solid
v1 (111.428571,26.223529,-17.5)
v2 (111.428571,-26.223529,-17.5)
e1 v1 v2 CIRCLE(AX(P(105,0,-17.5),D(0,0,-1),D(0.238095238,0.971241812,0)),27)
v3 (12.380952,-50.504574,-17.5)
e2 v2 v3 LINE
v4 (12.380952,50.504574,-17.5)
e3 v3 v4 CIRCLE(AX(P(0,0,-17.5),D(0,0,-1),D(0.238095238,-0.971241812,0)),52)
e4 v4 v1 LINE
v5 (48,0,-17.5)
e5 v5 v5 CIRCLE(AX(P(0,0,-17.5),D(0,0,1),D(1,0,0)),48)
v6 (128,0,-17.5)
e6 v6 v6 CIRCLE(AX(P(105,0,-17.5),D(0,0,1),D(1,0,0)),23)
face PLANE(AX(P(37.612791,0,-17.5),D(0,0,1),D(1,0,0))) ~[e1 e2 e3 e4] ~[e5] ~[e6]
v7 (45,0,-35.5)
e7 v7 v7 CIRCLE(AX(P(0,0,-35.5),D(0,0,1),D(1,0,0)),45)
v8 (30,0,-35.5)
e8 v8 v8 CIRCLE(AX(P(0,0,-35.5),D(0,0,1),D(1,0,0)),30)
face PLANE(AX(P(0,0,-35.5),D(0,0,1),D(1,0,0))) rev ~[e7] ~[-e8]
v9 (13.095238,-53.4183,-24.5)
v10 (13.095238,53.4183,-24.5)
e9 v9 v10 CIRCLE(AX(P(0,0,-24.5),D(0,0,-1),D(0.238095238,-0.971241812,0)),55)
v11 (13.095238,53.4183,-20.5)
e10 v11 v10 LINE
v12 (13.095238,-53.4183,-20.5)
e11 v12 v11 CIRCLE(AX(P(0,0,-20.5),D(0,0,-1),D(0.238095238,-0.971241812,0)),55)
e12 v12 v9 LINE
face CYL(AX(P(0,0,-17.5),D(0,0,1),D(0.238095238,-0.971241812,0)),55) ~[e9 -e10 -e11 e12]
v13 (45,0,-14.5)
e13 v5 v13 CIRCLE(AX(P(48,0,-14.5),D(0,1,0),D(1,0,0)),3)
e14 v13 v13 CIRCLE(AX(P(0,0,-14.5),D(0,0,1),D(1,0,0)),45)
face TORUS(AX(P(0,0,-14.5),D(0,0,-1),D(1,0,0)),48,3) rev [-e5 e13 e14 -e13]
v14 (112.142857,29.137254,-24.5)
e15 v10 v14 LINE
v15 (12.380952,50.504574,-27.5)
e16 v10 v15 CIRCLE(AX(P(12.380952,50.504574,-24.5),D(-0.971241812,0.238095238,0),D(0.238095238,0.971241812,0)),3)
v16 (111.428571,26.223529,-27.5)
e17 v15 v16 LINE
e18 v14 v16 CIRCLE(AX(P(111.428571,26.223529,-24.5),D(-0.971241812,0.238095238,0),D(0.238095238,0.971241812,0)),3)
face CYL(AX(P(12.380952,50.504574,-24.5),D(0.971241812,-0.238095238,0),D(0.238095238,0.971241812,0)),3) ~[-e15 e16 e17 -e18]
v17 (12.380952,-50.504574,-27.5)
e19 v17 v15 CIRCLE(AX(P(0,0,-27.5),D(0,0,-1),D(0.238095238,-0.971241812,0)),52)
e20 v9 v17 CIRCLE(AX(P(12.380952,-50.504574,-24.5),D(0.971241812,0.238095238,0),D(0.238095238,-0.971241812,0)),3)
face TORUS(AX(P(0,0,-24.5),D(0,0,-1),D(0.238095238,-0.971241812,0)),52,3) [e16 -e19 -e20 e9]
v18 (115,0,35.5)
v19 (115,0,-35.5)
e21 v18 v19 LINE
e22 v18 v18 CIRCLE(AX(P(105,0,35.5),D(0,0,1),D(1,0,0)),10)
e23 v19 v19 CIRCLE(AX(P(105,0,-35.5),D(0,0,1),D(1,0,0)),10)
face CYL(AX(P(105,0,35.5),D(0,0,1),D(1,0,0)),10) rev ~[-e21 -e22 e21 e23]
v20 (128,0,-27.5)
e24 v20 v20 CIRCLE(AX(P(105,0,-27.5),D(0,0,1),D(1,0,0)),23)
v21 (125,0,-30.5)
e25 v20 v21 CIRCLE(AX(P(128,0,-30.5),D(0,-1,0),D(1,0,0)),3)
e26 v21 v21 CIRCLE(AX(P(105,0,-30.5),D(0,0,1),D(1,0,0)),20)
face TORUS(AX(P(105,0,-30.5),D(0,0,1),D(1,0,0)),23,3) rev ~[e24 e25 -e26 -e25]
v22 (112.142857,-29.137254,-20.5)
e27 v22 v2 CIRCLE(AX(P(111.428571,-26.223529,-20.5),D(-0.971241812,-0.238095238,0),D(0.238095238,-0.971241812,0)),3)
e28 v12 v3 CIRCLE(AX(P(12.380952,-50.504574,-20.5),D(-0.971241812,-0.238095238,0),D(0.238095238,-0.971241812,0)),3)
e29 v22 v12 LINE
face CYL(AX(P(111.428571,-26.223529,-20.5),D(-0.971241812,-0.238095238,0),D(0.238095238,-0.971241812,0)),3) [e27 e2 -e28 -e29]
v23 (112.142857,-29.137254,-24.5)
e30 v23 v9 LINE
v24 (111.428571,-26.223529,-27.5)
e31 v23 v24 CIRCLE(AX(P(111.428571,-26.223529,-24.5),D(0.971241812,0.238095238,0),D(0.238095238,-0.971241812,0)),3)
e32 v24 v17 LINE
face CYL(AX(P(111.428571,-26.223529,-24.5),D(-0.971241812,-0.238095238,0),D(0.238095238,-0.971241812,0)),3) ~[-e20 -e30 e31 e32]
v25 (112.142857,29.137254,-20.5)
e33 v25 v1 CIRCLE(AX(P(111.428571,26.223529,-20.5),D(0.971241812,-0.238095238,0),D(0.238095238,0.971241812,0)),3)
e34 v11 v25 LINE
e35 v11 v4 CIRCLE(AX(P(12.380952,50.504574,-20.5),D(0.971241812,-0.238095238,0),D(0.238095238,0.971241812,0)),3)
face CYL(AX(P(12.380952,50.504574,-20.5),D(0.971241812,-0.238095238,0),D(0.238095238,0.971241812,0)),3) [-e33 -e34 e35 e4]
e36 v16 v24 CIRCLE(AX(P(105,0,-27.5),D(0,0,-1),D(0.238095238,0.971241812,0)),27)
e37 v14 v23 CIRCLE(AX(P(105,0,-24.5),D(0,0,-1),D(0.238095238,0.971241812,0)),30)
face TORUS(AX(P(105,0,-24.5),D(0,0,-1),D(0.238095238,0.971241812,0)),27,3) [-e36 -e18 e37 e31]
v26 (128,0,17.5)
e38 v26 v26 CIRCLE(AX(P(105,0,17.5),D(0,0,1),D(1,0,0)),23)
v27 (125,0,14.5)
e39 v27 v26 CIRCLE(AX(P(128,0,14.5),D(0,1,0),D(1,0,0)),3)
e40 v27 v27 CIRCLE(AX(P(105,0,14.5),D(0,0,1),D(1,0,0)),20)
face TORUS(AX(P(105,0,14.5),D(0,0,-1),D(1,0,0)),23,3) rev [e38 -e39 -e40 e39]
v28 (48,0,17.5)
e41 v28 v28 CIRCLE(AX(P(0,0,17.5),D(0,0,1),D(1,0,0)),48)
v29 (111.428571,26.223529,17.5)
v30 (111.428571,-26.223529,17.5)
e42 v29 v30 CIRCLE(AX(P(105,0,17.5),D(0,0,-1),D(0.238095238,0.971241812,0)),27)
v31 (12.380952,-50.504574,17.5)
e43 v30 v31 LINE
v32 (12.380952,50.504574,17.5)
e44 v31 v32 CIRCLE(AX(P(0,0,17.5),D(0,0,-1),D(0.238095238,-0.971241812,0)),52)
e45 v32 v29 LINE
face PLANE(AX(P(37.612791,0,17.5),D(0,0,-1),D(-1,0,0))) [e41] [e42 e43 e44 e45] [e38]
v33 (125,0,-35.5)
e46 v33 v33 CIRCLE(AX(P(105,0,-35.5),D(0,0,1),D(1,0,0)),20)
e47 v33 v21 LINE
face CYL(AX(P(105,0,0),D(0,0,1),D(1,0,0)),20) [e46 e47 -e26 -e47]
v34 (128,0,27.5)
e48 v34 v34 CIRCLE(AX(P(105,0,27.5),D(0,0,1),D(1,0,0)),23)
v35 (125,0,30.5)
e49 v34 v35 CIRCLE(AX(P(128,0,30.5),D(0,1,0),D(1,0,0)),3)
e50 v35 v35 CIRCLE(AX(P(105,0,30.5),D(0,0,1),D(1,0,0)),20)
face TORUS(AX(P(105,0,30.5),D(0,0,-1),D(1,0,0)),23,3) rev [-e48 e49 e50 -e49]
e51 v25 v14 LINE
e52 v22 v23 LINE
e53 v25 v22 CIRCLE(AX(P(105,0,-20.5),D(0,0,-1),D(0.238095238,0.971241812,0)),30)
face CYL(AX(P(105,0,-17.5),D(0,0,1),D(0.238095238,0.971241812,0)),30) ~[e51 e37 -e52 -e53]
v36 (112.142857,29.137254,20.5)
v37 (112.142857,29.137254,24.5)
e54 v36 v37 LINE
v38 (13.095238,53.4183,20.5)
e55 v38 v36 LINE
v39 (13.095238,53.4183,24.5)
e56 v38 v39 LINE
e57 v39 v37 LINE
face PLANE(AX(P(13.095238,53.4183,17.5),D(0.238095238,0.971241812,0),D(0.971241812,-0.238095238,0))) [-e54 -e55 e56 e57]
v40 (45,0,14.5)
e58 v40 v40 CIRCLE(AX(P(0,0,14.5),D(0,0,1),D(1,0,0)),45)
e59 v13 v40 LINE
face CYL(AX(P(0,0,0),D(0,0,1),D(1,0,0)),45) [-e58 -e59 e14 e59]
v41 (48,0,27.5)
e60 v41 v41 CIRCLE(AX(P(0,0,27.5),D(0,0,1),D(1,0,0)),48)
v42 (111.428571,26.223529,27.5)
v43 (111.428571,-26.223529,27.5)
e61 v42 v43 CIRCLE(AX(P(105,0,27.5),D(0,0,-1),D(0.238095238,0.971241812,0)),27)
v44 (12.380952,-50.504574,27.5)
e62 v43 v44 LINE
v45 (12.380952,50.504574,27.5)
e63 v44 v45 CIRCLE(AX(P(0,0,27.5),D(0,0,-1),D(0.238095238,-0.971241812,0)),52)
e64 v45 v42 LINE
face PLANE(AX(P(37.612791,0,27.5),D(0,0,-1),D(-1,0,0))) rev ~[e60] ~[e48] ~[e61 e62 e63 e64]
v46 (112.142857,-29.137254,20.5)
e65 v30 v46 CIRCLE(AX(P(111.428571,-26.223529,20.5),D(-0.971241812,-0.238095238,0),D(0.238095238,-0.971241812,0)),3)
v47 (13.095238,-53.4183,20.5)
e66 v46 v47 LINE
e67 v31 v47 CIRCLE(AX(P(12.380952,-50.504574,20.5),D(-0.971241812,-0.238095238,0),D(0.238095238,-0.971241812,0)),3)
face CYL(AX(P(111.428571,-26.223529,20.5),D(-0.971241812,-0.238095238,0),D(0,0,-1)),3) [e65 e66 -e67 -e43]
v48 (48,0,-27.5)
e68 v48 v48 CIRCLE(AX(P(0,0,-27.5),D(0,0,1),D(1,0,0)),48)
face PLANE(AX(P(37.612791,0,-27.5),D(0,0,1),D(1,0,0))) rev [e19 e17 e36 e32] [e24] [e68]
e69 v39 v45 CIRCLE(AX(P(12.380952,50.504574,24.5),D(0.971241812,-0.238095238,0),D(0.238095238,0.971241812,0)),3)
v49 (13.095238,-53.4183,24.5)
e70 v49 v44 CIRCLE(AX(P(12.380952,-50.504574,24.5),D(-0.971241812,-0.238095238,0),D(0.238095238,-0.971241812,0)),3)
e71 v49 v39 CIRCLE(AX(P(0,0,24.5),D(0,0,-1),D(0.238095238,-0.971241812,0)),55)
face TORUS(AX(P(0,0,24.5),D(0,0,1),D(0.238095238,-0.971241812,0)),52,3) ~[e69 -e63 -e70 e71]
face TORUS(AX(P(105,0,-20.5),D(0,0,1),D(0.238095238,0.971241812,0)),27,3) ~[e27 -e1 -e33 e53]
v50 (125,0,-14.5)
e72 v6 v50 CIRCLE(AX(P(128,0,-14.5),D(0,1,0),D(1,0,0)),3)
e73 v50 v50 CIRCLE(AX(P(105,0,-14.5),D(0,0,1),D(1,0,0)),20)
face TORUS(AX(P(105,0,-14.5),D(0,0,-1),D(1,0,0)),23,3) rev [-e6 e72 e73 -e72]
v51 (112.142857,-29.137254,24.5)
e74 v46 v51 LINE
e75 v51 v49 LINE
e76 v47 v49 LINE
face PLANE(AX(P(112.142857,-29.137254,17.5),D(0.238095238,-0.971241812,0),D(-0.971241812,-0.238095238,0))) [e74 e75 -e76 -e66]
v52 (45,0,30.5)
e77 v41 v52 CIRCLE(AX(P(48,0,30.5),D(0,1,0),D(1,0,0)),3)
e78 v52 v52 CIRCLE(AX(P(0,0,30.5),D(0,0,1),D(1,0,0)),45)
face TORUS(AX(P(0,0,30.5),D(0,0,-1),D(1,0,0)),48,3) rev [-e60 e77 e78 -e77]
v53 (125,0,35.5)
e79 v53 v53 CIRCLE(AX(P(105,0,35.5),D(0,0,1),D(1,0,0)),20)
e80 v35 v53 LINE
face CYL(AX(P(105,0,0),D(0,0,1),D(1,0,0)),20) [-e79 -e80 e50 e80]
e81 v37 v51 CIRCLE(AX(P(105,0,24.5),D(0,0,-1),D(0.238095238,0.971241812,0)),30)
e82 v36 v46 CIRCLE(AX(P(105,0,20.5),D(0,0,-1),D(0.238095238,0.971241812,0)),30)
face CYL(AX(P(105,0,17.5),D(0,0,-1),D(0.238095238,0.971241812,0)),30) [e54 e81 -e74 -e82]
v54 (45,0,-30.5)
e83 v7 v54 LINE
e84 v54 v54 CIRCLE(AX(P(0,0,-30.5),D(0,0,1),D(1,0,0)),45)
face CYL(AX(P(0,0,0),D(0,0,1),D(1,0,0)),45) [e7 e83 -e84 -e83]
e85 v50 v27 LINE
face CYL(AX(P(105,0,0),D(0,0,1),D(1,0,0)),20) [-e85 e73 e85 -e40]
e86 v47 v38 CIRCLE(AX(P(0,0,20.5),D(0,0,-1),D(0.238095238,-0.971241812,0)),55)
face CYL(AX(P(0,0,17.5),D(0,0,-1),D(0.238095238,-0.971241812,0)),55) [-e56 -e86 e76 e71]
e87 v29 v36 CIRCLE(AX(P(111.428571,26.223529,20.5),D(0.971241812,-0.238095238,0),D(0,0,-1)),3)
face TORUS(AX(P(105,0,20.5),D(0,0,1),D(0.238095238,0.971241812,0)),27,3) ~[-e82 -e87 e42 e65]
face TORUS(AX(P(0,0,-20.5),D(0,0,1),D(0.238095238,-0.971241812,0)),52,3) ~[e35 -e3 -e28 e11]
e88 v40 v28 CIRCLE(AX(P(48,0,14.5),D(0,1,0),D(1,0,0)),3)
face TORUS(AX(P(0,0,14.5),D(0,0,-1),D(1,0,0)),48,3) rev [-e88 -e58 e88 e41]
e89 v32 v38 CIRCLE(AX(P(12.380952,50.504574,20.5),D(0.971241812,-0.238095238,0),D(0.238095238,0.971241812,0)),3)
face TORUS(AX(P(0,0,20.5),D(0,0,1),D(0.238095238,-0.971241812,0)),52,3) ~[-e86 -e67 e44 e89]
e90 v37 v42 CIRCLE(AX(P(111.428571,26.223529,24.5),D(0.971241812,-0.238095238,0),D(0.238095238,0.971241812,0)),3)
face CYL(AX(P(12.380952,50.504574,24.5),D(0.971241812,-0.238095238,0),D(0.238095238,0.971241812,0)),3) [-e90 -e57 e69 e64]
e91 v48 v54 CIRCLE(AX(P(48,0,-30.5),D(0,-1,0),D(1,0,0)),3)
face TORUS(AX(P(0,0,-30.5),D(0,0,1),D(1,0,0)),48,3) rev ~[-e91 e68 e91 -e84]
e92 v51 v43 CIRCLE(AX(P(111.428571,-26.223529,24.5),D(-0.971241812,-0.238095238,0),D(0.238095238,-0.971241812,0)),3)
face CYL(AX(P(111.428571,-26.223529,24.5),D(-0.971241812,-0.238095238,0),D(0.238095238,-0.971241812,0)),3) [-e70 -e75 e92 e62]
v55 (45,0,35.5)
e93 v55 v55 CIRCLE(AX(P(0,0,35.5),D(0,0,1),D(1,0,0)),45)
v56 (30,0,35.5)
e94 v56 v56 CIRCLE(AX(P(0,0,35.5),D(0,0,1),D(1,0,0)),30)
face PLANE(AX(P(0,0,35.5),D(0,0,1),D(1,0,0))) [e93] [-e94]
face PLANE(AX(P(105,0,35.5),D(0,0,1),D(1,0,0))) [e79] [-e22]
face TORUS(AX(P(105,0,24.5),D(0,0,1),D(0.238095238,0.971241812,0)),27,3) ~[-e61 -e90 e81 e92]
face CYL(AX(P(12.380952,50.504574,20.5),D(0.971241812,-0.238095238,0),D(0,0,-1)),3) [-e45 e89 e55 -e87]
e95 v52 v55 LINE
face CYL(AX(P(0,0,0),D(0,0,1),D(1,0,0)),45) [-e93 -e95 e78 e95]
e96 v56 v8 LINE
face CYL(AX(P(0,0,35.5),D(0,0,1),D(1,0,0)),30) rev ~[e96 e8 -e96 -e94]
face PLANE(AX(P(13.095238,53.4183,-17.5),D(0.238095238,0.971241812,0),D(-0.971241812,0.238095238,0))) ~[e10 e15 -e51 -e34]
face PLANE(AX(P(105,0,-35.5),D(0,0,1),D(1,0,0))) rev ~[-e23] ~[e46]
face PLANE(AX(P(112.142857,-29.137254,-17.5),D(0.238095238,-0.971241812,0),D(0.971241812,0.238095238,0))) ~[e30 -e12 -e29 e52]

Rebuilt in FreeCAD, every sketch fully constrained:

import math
import FreeCAD as App
import Part
import Sketcher
from FreeCAD import Vector
Q = App.Units.Quantity


def edges_at(feature, points):
    """Names of the edges that pass closest to the given points."""
    edges = feature.Shape.Edges
    near = lambda p: min(range(len(edges)), key=lambda i: edges[i].distToShape(Part.Vertex(*p))[0])
    return sorted({f"Edge{near(p) + 1}" for p in points})

doc = App.newDocument("Part")
params = doc.addObject("Spreadsheet::Sheet", "Params")
for row, (alias, value) in enumerate([
    ("sketch1_diameter", "90 mm"),
    ("pad1_length", "71 mm"),
    ("sketch2_diameter", "40 mm"),
    ("pad2_length", "71 mm"),
    ("sketch3_radius", "55 mm"),
    ("sketch3_radius2", "30 mm"),
    ("pad3_length", "10 mm"),
    ("sketch4_diameter", "60 mm"),
    ("sketch4_diameter2", "20 mm"),
    ("fillet_radius", "3 mm"),
], start=1):
    params.set(f"A{row}", alias)
    params.set(f"B{row}", "=" + value)
    params.setAlias(f"B{row}", alias)

body = doc.addObject("PartDesign::Body", "Body")

# Sketch on XY plane
sketch1 = body.newObject("Sketcher::SketchObject", "Sketch")
sketch1.AttachmentSupport = (doc.getObject("XY_Plane"), [""])
sketch1.MapMode = "FlatFace"
sketch1.addGeometry(Part.Circle(Vector(0, 0, 0), Vector(0, 0, 1), 45), False)
sketch1.addConstraint([
    Sketcher.Constraint("Coincident", 0, 3, -1, 1),
    Sketcher.Constraint("Diameter", 0, Q("90 mm")),
])
sketch1.setExpression("Constraints[1]", "Params.sketch1_diameter")
pad1 = body.newObject("PartDesign::Pad", "Pad")
pad1.Profile = sketch1
pad1.setExpression("Length", "Params.pad1_length")
pad1.Midplane = True
body2 = doc.addObject("PartDesign::Body", "Body001")

# Sketch on XY plane
sketch2 = body2.newObject("Sketcher::SketchObject", "Sketch001")
sketch2.AttachmentSupport = (doc.getObject("XY_Plane001"), [""])
sketch2.MapMode = "FlatFace"
sketch2.addGeometry(Part.Circle(Vector(105, 0, 0), Vector(0, 0, 1), 20), False)
sketch2.addConstraint([
    Sketcher.Constraint("PointOnObject", 0, 3, -1),
    Sketcher.Constraint("Diameter", 0, Q("40 mm")),
    Sketcher.Constraint("DistanceX", -1, 1, 0, 3, Q("105 mm")),
])
sketch2.setExpression("Constraints[1]", "Params.sketch2_diameter")
pad2 = body2.newObject("PartDesign::Pad", "Pad001")
pad2.Profile = sketch2
pad2.setExpression("Length", "Params.pad2_length")
pad2.Midplane = True
body.AllowCompound = True
doc.recompute()

boolean = body.newObject("PartDesign::Boolean", "Boolean")
boolean.Type = "Fuse"
boolean.addObjects([body2])

# Sketch on XY plane
sketch3 = body.newObject("Sketcher::SketchObject", "Sketch002")
sketch3.AttachmentSupport = (doc.getObject("XY_Plane"), [""])
sketch3.MapMode = "FlatFace"
sketch3.AttachmentOffset = App.Placement(Vector(0, 0, 17.5), App.Rotation())
sketch3.addGeometry([
    Part.LineSegment(Vector(112, 29, 0), Vector(13, 53, 0)),
    Part.ArcOfCircle(Part.Circle(Vector(0, 0, 0), Vector(0, 0, 1), 55), math.radians(76), math.radians(284)),
    Part.LineSegment(Vector(13, -53, 0), Vector(112, -29, 0)),
    Part.ArcOfCircle(Part.Circle(Vector(105, 0, 0), Vector(0, 0, 1), 30), math.radians(-76), math.radians(76)),
], False)
sketch3.addConstraint([
    Sketcher.Constraint("Tangent", 0, 2, 1, 1),
    Sketcher.Constraint("Tangent", 1, 2, 2, 1),
    Sketcher.Constraint("Tangent", 2, 2, 3, 1),
    Sketcher.Constraint("Tangent", 3, 2, 0, 1),
    Sketcher.Constraint("Coincident", 1, 3, -1, 1),
    Sketcher.Constraint("PointOnObject", 3, 3, -1),
    Sketcher.Constraint("Radius", 1, Q("55 mm")),
    Sketcher.Constraint("Radius", 3, Q("30 mm")),
    Sketcher.Constraint("DistanceX", -1, 1, 3, 3, Q("105 mm")),
])
sketch3.setExpression("Constraints[6]", "Params.sketch3_radius")
sketch3.setExpression("Constraints[7]", "Params.sketch3_radius2")
pad3 = body.newObject("PartDesign::Pad", "Pad002")
pad3.Profile = sketch3
pad3.setExpression("Length", "Params.pad3_length")
doc.recompute()

mirrored = body.newObject("PartDesign::Mirrored", "Mirrored")
mirrored.Originals = [pad3]
mirrored.MirrorPlane = (doc.getObject("XY_Plane"), [""])
body.Tip = mirrored

# Sketch on XY plane
sketch4 = body.newObject("Sketcher::SketchObject", "Sketch003")
sketch4.AttachmentSupport = (doc.getObject("XY_Plane"), [""])
sketch4.MapMode = "FlatFace"
sketch4.AttachmentOffset = App.Placement(Vector(0, 0, 35.5), App.Rotation())
sketch4.addGeometry([
    Part.Circle(Vector(0, 0, 0), Vector(0, 0, 1), 30),
    Part.Circle(Vector(105, 0, 0), Vector(0, 0, 1), 10),
], False)
sketch4.addConstraint([
    Sketcher.Constraint("Coincident", 0, 3, -1, 1),
    Sketcher.Constraint("PointOnObject", 1, 3, -1),
    Sketcher.Constraint("Diameter", 0, Q("60 mm")),
    Sketcher.Constraint("Diameter", 1, Q("20 mm")),
    Sketcher.Constraint("DistanceX", -1, 1, 1, 3, Q("105 mm")),
])
sketch4.setExpression("Constraints[2]", "Params.sketch4_diameter")
sketch4.setExpression("Constraints[3]", "Params.sketch4_diameter2")
pocket1 = body.newObject("PartDesign::Pocket", "Pocket")
pocket1.Profile = sketch4
pocket1.Type = "ThroughAll"
doc.recompute()

fillet = body.newObject("PartDesign::Fillet", "Fillet")
fillet.Base = (pocket1, edges_at(pocket1, [
    (-45, 0, 27.5),
    (-55, 0, 17.5),
    (62.619, -41.278, 17.5),
    (135, 0, 17.5),
    (62.619, 41.278, 17.5),
    (-55, 0, 27.5),
    (62.619, -41.278, 27.5),
    (135, 0, 27.5),
    (62.619, 41.278, 27.5),
    (85, 0, 17.5),
    (85, 0, 27.5),
    (85, 0, -17.5),
    (-45, 0, -17.5),
    (-45, 0, -27.5),
    (85, 0, -27.5),
    (-55, 0, -27.5),
    (62.619, 41.278, -27.5),
    (135, 0, -27.5),
    (62.619, -41.278, -27.5),
    (-55, 0, -17.5),
    (62.619, -41.278, -17.5),
    (135, 0, -17.5),
    (62.619, 41.278, -17.5),
    (-45, 0, 17.5),
]))
fillet.setExpression("Radius", "Params.fillet_radius")

doc.recompute()
